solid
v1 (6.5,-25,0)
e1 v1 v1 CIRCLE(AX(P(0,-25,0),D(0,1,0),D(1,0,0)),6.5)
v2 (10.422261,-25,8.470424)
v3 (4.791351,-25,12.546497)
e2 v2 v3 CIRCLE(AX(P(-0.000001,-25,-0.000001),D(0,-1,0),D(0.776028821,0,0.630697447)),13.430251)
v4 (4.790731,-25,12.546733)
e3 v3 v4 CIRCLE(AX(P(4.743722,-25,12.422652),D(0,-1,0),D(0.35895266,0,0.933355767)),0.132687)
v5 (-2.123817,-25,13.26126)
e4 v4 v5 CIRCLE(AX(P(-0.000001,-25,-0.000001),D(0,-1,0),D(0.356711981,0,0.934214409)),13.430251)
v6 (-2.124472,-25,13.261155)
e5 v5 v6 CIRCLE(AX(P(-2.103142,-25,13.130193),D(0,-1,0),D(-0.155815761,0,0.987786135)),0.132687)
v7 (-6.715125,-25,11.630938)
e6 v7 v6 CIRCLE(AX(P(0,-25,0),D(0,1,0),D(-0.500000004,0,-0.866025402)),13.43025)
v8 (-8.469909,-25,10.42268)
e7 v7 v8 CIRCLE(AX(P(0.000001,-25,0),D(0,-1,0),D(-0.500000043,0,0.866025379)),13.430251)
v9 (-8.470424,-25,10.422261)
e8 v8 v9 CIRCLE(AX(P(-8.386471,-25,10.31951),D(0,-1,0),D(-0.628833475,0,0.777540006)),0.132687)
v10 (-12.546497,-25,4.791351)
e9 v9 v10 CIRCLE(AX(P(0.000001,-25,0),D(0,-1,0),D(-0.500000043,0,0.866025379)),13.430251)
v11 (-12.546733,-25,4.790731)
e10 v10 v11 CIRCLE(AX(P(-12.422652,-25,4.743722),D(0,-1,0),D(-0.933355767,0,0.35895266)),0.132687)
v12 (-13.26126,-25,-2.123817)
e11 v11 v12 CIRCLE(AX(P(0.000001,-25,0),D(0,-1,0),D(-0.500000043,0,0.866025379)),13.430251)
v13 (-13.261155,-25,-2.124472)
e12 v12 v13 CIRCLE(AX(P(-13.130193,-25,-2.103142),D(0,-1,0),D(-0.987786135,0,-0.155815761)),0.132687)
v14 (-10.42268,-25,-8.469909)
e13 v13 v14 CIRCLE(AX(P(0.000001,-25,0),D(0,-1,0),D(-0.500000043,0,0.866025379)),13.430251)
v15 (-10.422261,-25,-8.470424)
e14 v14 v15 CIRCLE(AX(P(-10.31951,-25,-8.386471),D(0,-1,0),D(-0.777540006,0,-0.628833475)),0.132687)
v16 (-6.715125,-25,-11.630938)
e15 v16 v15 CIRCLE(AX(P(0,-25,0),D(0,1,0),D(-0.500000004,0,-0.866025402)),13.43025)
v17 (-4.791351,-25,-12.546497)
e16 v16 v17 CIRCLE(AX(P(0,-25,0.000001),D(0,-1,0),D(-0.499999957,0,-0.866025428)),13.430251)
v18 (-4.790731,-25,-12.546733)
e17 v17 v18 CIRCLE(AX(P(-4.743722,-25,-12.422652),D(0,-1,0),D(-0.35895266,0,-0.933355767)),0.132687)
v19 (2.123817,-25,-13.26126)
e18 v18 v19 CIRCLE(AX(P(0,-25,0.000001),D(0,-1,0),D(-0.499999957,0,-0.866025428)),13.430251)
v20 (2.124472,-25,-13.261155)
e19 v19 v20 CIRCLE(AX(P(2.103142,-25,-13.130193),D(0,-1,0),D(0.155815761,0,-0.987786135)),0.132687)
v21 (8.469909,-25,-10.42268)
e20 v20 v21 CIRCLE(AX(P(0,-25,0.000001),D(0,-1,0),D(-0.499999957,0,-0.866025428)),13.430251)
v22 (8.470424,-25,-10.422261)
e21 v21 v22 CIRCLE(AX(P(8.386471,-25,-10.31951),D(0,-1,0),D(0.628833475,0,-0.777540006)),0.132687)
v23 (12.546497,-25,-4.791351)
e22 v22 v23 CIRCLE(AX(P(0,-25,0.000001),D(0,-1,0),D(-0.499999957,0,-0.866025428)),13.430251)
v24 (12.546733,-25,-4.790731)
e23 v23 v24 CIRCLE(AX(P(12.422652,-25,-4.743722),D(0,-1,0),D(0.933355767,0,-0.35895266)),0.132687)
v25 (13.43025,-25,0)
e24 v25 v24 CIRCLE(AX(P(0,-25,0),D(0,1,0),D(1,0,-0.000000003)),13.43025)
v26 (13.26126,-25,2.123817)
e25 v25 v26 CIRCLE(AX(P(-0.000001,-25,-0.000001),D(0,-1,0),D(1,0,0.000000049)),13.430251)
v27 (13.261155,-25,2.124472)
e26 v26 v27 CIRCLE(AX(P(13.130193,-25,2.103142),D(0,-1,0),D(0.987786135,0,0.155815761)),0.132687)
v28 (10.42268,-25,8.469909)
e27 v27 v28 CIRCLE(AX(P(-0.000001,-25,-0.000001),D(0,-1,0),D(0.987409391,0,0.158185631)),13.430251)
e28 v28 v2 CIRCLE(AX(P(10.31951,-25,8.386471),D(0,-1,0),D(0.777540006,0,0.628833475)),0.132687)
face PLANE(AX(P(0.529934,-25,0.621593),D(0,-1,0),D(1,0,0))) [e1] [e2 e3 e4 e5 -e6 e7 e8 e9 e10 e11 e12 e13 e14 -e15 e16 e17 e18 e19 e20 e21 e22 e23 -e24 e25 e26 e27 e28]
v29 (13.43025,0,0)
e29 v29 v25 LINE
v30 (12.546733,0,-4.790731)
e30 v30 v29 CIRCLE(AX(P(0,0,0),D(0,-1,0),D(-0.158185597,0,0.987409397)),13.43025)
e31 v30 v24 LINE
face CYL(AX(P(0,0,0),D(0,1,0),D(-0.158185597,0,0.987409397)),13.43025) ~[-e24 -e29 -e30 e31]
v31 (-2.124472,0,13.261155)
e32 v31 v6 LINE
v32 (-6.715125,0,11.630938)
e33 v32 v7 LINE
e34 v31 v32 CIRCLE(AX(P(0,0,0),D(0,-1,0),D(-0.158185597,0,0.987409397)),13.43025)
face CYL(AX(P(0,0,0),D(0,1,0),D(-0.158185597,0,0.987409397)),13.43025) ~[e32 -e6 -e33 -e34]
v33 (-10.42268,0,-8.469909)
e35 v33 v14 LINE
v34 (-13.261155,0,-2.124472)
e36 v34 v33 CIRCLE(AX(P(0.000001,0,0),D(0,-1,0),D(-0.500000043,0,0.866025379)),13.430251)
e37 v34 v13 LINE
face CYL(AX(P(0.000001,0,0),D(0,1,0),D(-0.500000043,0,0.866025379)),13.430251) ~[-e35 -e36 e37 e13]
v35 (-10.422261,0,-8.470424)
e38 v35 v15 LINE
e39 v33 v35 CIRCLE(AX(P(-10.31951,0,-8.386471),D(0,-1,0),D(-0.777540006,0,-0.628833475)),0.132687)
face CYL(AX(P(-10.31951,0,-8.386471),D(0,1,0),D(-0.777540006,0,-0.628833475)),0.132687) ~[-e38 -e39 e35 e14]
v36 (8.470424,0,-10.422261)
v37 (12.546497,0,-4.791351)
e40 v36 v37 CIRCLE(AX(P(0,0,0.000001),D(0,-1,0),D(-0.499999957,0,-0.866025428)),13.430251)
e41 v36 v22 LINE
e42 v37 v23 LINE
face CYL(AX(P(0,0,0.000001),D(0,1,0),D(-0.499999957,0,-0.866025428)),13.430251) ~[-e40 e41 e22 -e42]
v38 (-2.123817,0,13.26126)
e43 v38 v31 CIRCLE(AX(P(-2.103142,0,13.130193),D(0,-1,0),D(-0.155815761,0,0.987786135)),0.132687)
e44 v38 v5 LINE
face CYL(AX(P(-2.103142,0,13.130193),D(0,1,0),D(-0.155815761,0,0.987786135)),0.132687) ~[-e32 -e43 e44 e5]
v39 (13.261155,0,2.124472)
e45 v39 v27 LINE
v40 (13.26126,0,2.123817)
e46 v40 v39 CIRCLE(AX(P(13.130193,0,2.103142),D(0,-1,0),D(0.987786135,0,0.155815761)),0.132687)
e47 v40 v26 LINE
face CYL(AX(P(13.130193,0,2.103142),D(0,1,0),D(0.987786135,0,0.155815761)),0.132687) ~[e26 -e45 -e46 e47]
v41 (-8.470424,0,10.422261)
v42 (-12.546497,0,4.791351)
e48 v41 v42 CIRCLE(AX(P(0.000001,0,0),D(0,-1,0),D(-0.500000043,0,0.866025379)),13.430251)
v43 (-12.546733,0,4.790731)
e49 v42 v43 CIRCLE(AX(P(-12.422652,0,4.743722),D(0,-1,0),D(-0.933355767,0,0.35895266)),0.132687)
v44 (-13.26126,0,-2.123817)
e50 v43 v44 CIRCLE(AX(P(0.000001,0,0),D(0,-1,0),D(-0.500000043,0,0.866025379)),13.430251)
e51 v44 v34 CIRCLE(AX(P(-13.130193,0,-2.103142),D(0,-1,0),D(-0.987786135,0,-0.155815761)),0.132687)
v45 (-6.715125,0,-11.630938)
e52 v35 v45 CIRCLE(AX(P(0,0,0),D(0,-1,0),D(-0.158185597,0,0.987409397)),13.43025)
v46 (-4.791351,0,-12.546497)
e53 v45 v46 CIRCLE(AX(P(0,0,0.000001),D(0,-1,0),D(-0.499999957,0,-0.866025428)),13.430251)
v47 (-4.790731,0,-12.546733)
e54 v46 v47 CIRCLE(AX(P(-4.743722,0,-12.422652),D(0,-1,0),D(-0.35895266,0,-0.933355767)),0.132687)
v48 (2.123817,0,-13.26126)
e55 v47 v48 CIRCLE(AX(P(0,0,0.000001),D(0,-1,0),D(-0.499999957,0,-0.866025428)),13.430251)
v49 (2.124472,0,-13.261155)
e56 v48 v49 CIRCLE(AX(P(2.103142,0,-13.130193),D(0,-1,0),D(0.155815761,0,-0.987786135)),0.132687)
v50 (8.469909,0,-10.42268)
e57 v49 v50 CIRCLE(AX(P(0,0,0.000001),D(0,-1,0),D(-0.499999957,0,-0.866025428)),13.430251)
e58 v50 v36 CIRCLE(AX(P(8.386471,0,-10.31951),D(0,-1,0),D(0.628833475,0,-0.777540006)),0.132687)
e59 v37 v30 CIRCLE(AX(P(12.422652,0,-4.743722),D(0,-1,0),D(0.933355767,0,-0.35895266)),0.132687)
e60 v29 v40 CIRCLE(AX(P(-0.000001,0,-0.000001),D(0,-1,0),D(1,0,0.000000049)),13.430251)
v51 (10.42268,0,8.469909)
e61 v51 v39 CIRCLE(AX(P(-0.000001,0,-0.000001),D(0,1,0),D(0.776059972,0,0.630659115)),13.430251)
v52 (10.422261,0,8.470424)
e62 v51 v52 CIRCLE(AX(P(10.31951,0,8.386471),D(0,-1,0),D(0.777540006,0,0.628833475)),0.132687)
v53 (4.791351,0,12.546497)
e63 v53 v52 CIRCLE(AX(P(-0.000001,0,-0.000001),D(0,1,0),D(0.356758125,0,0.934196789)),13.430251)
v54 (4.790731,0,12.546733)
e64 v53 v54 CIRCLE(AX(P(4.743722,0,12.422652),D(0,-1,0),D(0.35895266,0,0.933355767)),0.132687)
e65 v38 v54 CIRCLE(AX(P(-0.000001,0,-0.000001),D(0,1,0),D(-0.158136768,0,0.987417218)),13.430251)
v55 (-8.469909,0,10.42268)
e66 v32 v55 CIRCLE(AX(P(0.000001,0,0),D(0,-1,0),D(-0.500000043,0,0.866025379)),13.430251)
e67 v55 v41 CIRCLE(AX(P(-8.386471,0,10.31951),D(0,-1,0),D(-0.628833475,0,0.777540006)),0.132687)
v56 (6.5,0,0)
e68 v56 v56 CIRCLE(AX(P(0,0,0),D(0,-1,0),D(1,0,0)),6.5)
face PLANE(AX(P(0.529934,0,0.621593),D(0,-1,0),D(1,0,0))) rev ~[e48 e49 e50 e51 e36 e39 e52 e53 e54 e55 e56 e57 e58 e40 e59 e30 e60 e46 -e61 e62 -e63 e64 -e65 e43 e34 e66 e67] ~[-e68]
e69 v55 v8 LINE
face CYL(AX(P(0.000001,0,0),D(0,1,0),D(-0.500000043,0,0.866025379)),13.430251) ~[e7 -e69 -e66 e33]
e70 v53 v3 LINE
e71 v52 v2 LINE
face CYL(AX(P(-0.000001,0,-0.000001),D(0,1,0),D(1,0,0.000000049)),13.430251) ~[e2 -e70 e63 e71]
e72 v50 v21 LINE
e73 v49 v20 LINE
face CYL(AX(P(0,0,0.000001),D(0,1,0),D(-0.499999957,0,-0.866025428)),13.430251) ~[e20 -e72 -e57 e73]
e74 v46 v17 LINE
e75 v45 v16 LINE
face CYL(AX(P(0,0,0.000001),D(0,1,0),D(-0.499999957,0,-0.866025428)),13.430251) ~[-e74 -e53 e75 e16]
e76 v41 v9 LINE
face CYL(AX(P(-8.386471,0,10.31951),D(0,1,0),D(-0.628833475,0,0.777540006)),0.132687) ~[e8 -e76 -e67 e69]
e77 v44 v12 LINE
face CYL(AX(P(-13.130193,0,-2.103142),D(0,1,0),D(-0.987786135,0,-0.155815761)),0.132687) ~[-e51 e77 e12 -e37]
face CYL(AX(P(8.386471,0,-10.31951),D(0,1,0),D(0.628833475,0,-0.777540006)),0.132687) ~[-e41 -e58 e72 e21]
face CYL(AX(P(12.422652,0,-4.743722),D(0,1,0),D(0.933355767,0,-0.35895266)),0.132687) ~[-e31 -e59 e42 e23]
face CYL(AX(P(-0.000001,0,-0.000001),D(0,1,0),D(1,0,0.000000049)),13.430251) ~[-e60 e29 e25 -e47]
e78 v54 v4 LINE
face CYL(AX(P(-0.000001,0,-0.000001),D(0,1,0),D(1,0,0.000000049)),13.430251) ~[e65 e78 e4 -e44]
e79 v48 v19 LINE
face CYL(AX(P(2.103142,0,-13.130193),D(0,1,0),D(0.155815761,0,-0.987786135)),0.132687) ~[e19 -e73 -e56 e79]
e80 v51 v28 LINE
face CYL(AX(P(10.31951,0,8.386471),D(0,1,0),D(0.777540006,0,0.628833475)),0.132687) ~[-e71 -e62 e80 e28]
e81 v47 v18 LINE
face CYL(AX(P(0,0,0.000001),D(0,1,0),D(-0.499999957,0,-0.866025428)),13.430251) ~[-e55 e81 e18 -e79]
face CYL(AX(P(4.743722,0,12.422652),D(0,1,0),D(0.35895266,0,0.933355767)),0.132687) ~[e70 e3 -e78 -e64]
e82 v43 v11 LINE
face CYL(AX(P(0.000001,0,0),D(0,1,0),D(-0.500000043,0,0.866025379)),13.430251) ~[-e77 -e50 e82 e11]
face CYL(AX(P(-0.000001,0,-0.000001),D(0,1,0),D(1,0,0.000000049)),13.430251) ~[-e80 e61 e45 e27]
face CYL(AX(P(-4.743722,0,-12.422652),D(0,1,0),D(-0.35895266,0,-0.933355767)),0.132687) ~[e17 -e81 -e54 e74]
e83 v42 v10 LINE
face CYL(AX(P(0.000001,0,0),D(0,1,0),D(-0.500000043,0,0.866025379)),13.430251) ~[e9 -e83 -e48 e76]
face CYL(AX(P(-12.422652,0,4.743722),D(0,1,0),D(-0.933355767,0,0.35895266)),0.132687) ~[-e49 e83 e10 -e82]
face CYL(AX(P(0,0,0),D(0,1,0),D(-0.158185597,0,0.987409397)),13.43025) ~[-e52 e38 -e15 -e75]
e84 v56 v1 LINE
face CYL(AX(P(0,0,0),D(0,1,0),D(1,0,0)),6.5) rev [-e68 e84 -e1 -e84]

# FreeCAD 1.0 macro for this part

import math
import FreeCAD as App
import Part
import Sketcher
Q = App.Units.Quantity

doc = App.newDocument("Part")
body = doc.addObject("PartDesign::Body", "Body")

# Sketch on XZ plane
sketch1 = body.newObject("Sketcher::SketchObject", "Sketch")
sketch1.AttachmentSupport = (doc.getObject("XZ_Plane"), [""])
sketch1.MapMode = "FlatFace"
sketch1.addGeometry(Part.ArcOfCircle(Part.Circle(App.Vector(0, 0, 0), App.Vector(0, 0, 1), 13.4302), math.radians(99), math.radians(360)), False)
sketch1.addGeometry(Part.ArcOfCircle(Part.Circle(App.Vector(0, 0, 0), App.Vector(0, 0, 1), 13.4303), math.radians(0), math.radians(99)), False)
sketch1.addGeometry(Part.ArcOfCircle(Part.Circle(App.Vector(-2.1031, 13.1302, 0), App.Vector(0, 0, 1), 0.1327), math.radians(98.96), math.radians(99.25)), False)
sketch1.addGeometry(Part.Circle(App.Vector(0, 0, 0), App.Vector(0, 0, 1), 6.5), False)
sketch1.addConstraint(Sketcher.Constraint("Tangent", 0, 2, 1, 1))
sketch1.addConstraint(Sketcher.Constraint("Coincident", 1, 2, 2, 1))
sketch1.addConstraint(Sketcher.Constraint("Coincident", 2, 2, 0, 1))
sketch1.addConstraint(Sketcher.Constraint("Coincident", 0, 3, -1, 1))
sketch1.addConstraint(Sketcher.Constraint("Coincident", 3, 3, -1, 1))
sketch1.addConstraint(Sketcher.Constraint("PointOnObject", 0, 2, -1))
sketch1.addConstraint(Sketcher.Constraint("Diameter", 3, Q("13 mm")))
sketch1.addConstraint(Sketcher.Constraint("Radius", 0, Q("13.43025 mm")))
sketch1.addConstraint(Sketcher.Constraint("Radius", 2, Q("0.132687 mm")))
sketch1.addConstraint(Sketcher.Constraint("DistanceY", -1, 1, 1, 2, Q("13.26126 mm")))
sketch1.addConstraint(Sketcher.Constraint("DistanceX", 2, 2, -1, 1, Q("2.124472 mm")))
sketch1.addConstraint(Sketcher.Constraint("DistanceX", 2, 3, 1, 3, Q("2.103142 mm")))
pad1 = body.newObject("PartDesign::Pad", "Pad")
pad1.Profile = sketch1
pad1.Length = 25
body2 = doc.addObject("PartDesign::Body", "Body001")
doc.recompute()

body2.BaseFeature = body
doc.recompute()

body3 = doc.addObject("PartDesign::Body", "Body002")
body3.BaseFeature = body
body3.Placement = App.Placement(App.Vector(0, 0, 0), App.Rotation(App.Vector(0, 1, 0), 30))
boolean = body2.newObject("PartDesign::Boolean", "Boolean")
boolean.Type = "Fuse"
boolean.addObjects([body3])
doc.recompute()

body4 = doc.addObject("PartDesign::Body", "Body003")
body4.BaseFeature = body
body4.Placement = App.Placement(App.Vector(0, 0, 0), App.Rotation(App.Vector(0, 1, 0), 60))
boolean2 = body2.newObject("PartDesign::Boolean", "Boolean001")
boolean2.Type = "Fuse"
boolean2.addObjects([body4])
doc.recompute()

body5 = doc.addObject("PartDesign::Body", "Body004")
body5.BaseFeature = body
body5.Placement = App.Placement(App.Vector(0, 0, 0), App.Rotation(App.Vector(0, 1, 0), 90))
boolean3 = body2.newObject("PartDesign::Boolean", "Boolean002")
boolean3.Type = "Fuse"
boolean3.addObjects([body5])
doc.recompute()

body6 = doc.addObject("PartDesign::Body", "Body005")
body6.BaseFeature = body
body6.Placement = App.Placement(App.Vector(0, 0, 0), App.Rotation(App.Vector(0, 1, 0), 120))
boolean4 = body2.newObject("PartDesign::Boolean", "Boolean003")
boolean4.Type = "Fuse"
boolean4.addObjects([body6])
doc.recompute()

body7 = doc.addObject("PartDesign::Body", "Body006")
body7.BaseFeature = body
body7.Placement = App.Placement(App.Vector(0, 0, 0), App.Rotation(App.Vector(0, 1, 0), 150))
boolean5 = body2.newObject("PartDesign::Boolean", "Boolean004")
boolean5.Type = "Fuse"
boolean5.addObjects([body7])
doc.recompute()

body8 = doc.addObject("PartDesign::Body", "Body007")
body8.BaseFeature = body
body8.Placement = App.Placement(App.Vector(0, 0, 0), App.Rotation(App.Vector(0, 1, 0), 180))
boolean6 = body2.newObject("PartDesign::Boolean", "Boolean005")
boolean6.Type = "Fuse"
boolean6.addObjects([body8])
doc.recompute()

body9 = doc.addObject("PartDesign::Body", "Body008")
body9.BaseFeature = body
body9.Placement = App.Placement(App.Vector(0, 0, 0), App.Rotation(App.Vector(0, 1, 0), 210))
boolean7 = body2.newObject("PartDesign::Boolean", "Boolean006")
boolean7.Type = "Fuse"
boolean7.addObjects([body9])
doc.recompute()

body10 = doc.addObject("PartDesign::Body", "Body009")
body10.BaseFeature = body
body10.Placement = App.Placement(App.Vector(0, 0, 0), App.Rotation(App.Vector(0, 1, 0), 240))
boolean8 = body2.newObject("PartDesign::Boolean", "Boolean007")
boolean8.Type = "Fuse"
boolean8.addObjects([body10])
doc.recompute()

body11 = doc.addObject("PartDesign::Body", "Body010")
body11.BaseFeature = body
body11.Placement = App.Placement(App.Vector(0, 0, 0), App.Rotation(App.Vector(0, 1, 0), 270))
boolean9 = body2.newObject("PartDesign::Boolean", "Boolean008")
boolean9.Type = "Fuse"
boolean9.addObjects([body11])
doc.recompute()

body12 = doc.addObject("PartDesign::Body", "Body011")
body12.BaseFeature = body
body12.Placement = App.Placement(App.Vector(0, 0, 0), App.Rotation(App.Vector(0, 1, 0), 300))
boolean10 = body2.newObject("PartDesign::Boolean", "Boolean009")
boolean10.Type = "Fuse"
boolean10.addObjects([body12])
doc.recompute()

body.Placement = App.Placement(App.Vector(0, 0, 0), App.Rotation(App.Vector(0, 1, 0), 330))
boolean11 = body2.newObject("PartDesign::Boolean", "Boolean010")
boolean11.Type = "Fuse"
boolean11.addObjects([body])

doc.recompute()
